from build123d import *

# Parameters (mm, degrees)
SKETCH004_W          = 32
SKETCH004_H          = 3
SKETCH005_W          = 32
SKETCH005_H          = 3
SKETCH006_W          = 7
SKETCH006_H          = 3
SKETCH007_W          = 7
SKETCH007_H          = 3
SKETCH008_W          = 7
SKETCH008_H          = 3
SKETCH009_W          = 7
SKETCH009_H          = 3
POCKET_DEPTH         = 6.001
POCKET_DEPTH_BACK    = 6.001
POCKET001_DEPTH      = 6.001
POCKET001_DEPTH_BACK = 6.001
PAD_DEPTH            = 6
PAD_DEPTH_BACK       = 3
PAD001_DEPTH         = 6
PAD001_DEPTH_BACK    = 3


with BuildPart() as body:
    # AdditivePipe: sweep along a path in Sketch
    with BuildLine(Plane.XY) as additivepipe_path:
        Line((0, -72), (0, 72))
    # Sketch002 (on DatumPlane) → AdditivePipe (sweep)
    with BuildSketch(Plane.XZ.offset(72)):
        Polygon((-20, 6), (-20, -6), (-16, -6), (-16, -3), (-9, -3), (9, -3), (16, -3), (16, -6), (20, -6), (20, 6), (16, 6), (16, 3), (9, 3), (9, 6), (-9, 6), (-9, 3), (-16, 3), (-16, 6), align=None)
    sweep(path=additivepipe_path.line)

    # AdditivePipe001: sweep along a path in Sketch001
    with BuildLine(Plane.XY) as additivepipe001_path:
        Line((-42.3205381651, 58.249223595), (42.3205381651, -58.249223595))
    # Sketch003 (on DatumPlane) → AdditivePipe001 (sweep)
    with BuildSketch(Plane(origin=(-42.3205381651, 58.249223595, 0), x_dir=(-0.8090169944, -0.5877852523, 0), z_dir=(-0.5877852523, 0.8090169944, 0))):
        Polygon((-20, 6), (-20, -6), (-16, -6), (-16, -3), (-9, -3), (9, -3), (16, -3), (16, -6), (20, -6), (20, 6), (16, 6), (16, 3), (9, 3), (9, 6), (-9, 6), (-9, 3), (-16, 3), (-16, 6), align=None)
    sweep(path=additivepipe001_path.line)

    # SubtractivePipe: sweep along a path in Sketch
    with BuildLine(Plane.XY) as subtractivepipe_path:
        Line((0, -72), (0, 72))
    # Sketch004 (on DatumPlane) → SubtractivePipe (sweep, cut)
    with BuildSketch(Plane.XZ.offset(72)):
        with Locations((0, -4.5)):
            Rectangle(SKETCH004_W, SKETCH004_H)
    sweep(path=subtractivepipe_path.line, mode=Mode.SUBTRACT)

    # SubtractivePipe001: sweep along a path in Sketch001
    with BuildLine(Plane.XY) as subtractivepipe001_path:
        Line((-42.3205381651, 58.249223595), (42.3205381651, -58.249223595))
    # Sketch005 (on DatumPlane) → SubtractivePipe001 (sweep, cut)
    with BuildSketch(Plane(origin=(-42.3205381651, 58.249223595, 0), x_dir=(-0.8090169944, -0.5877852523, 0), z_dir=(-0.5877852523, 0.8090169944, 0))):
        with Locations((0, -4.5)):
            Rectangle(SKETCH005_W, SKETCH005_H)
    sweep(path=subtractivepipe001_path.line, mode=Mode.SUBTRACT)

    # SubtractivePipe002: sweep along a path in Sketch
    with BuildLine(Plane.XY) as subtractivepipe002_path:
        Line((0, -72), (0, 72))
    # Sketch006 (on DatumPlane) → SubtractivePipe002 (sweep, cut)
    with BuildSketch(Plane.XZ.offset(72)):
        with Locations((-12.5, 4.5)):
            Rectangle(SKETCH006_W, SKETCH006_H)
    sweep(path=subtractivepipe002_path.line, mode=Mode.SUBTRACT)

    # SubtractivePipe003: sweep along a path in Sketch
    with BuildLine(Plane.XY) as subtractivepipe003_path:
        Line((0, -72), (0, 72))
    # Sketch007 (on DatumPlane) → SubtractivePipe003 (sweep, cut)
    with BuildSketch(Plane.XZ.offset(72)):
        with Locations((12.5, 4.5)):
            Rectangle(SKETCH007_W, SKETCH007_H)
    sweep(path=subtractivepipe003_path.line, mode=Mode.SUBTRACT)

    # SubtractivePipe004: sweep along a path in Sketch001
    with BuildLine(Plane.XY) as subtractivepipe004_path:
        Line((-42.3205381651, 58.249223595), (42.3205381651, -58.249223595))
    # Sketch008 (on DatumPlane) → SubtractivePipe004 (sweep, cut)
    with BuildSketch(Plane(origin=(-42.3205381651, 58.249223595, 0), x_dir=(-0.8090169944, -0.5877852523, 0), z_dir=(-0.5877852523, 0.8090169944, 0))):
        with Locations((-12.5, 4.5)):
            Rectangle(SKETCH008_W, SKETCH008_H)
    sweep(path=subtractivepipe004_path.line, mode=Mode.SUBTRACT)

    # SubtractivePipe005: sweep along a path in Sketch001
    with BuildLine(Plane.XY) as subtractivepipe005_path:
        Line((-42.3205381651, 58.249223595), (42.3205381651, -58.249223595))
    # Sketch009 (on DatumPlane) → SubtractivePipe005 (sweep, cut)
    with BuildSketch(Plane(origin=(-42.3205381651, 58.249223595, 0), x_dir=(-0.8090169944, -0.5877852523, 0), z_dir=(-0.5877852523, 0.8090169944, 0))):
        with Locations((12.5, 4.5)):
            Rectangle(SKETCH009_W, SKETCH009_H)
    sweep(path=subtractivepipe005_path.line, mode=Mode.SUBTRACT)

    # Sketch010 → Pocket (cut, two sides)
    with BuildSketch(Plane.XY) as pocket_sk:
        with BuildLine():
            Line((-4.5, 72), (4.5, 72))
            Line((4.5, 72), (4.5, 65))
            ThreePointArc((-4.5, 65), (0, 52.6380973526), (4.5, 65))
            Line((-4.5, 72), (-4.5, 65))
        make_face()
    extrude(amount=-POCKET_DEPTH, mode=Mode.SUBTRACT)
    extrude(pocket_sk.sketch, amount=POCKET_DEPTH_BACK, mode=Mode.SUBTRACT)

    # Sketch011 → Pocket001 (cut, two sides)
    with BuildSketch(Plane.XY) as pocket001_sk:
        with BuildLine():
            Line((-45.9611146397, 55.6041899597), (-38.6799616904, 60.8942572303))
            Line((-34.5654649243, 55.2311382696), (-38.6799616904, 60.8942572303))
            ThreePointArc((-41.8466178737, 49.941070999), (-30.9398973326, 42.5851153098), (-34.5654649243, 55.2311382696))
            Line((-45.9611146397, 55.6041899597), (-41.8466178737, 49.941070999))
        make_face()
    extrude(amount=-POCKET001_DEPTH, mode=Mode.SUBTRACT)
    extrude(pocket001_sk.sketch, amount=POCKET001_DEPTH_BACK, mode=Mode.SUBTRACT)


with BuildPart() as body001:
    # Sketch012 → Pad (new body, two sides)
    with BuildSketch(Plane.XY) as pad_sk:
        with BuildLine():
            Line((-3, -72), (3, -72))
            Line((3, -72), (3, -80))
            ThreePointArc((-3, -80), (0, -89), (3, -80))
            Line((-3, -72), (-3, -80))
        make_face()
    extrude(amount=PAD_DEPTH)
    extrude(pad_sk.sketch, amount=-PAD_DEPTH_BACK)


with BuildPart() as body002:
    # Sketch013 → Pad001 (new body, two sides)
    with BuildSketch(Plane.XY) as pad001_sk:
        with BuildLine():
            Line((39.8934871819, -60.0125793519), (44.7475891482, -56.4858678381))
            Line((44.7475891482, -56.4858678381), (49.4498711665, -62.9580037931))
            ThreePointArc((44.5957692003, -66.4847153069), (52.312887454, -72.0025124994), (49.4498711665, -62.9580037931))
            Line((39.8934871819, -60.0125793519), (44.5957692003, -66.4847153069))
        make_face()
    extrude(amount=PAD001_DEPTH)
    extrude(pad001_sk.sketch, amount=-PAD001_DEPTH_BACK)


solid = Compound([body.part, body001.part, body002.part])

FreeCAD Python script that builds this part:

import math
import FreeCAD as App
import Part
import Sketcher

V = App.Vector
Q = App.Units.Quantity

doc = App.newDocument("Part")
body = doc.addObject("PartDesign::Body", "Body")

sketch1 = body.newObject("Sketcher::SketchObject", "Sketch")
sketch1.AttachmentSupport = (doc.getObject("XZ_Plane"), [""])
sketch1.MapMode = "FlatFace"
sketch1.AttachmentOffset = App.Placement(V(0, 0, 72), App.Rotation())
sketch1.addGeometry(Part.LineSegment(V(-20, 6, 0), V(-20, -6, 0)), False)
sketch1.addGeometry(Part.LineSegment(V(-20, -6, 0), V(-16, -6, 0)), False)
sketch1.addGeometry(Part.LineSegment(V(-16, -6, 0), V(-16, -3, 0)), False)
sketch1.addGeometry(Part.LineSegment(V(-16, -3, 0), V(16, -3, 0)), False)
sketch1.addGeometry(Part.LineSegment(V(16, -3, 0), V(16, -6, 0)), False)
sketch1.addGeometry(Part.LineSegment(V(16, -6, 0), V(20, -6, 0)), False)
sketch1.addGeometry(Part.LineSegment(V(20, -6, 0), V(20, 6, 0)), False)
sketch1.addGeometry(Part.LineSegment(V(20, 6, 0), V(16, 6, 0)), False)
sketch1.addGeometry(Part.LineSegment(V(16, 6, 0), V(16, 3, 0)), False)
sketch1.addGeometry(Part.LineSegment(V(16, 3, 0), V(9, 3, 0)), False)
sketch1.addGeometry(Part.LineSegment(V(9, 3, 0), V(9, 6, 0)), False)
sketch1.addGeometry(Part.LineSegment(V(9, 6, 0), V(-9, 6, 0)), False)
sketch1.addGeometry(Part.LineSegment(V(-9, 6, 0), V(-9, 3, 0)), False)
sketch1.addGeometry(Part.LineSegment(V(-9, 3, 0), V(-16, 3, 0)), False)
sketch1.addGeometry(Part.LineSegment(V(-16, 3, 0), V(-16, 6, 0)), False)
sketch1.addGeometry(Part.LineSegment(V(-16, 6, 0), V(-20, 6, 0)), False)
sketch1.addConstraint(Sketcher.Constraint("Coincident", 0, 2, 1, 1))
sketch1.addConstraint(Sketcher.Constraint("Coincident", 1, 2, 2, 1))
sketch1.addConstraint(Sketcher.Constraint("Coincident", 2, 2, 3, 1))
sketch1.addConstraint(Sketcher.Constraint("Coincident", 3, 2, 4, 1))
sketch1.addConstraint(Sketcher.Constraint("Coincident", 4, 2, 5, 1))
sketch1.addConstraint(Sketcher.Constraint("Coincident", 5, 2, 6, 1))
sketch1.addConstraint(Sketcher.Constraint("Coincident", 6, 2, 7, 1))
sketch1.addConstraint(Sketcher.Constraint("Coincident", 7, 2, 8, 1))
sketch1.addConstraint(Sketcher.Constraint("Coincident", 8, 2, 9, 1))
sketch1.addConstraint(Sketcher.Constraint("Coincident", 9, 2, 10, 1))
sketch1.addConstraint(Sketcher.Constraint("Coincident", 10, 2, 11, 1))
sketch1.addConstraint(Sketcher.Constraint("Coincident", 11, 2, 12, 1))
sketch1.addConstraint(Sketcher.Constraint("Coincident", 12, 2, 13, 1))
sketch1.addConstraint(Sketcher.Constraint("Coincident", 13, 2, 14, 1))
sketch1.addConstraint(Sketcher.Constraint("Coincident", 14, 2, 15, 1))
sketch1.addConstraint(Sketcher.Constraint("Coincident", 15, 2, 0, 1))
sketch1.addConstraint(Sketcher.Constraint("Vertical", 0))
sketch1.addConstraint(Sketcher.Constraint("Horizontal", 1))
sketch1.addConstraint(Sketcher.Constraint("Vertical", 2))
sketch1.addConstraint(Sketcher.Constraint("Horizontal", 3))
sketch1.addConstraint(Sketcher.Constraint("Vertical", 4))
sketch1.addConstraint(Sketcher.Constraint("Horizontal", 5))
sketch1.addConstraint(Sketcher.Constraint("Vertical", 6))
sketch1.addConstraint(Sketcher.Constraint("Horizontal", 7))
sketch1.addConstraint(Sketcher.Constraint("Vertical", 8))
sketch1.addConstraint(Sketcher.Constraint("Horizontal", 9))
sketch1.addConstraint(Sketcher.Constraint("Vertical", 10))
sketch1.addConstraint(Sketcher.Constraint("Horizontal", 11))
sketch1.addConstraint(Sketcher.Constraint("Vertical", 12))
sketch1.addConstraint(Sketcher.Constraint("Horizontal", 13))
sketch1.addConstraint(Sketcher.Constraint("Vertical", 14))
sketch1.addConstraint(Sketcher.Constraint("Horizontal", 15))
sketch1.addConstraint(Sketcher.Constraint("Symmetric", 0, 2, 6, 2, -1, 1))
sketch1.addConstraint(Sketcher.Constraint("Symmetric", 2, 2, 8, 2, -1, 1))
sketch1.addConstraint(Sketcher.Constraint("Symmetric", 3, 2, 13, 2, -1, 1))
sketch1.addConstraint(Sketcher.Constraint("Symmetric", 1, 2, 4, 2, -2))
sketch1.addConstraint(Sketcher.Constraint("Horizontal", 7, 2, 10, 2))
sketch1.addConstraint(Sketcher.Constraint("Horizontal", 11, 2, 14, 2))
sketch1.addConstraint(Sketcher.Constraint("Equal", 9, 13))
sketch1.addConstraint(Sketcher.Constraint("DistanceX", 1, 1, 1, 2, Q("4 mm")))
sketch1.addConstraint(Sketcher.Constraint("DistanceX", 3, 1, 3, 2, Q("32 mm")))
sketch1.addConstraint(Sketcher.Constraint("DistanceX", 9, 2, 9, 1, Q("7 mm")))
sketch1.addConstraint(Sketcher.Constraint("DistanceY", 0, 2, 0, 1, Q("12 mm")))
sketch1.addConstraint(Sketcher.Constraint("DistanceY", 2, 1, 2, 2, Q("3 mm")))

sketch2 = body.newObject("Sketcher::SketchObject", "Sketch001")
sketch2.AttachmentSupport = (doc.getObject("XY_Plane"), [""])
sketch2.MapMode = "FlatFace"
sketch2.addGeometry(Part.LineSegment(V(0, -72, 0), V(0, 72, 0)), False)
sketch2.addConstraint(Sketcher.Constraint("Vertical", 0))
sketch2.addConstraint(Sketcher.Constraint("Symmetric", 0, 1, 0, 2, -1, 1))
sketch2.addConstraint(Sketcher.Constraint("DistanceY", 0, 1, 0, 2, Q("144 mm")))
doc.recompute()

additivepipe = body.newObject("PartDesign::AdditivePipe", "AdditivePipe")
additivepipe.Profile = sketch1
additivepipe.Spine = (sketch2, ["Edge1"])

sketch3 = body.newObject("Sketcher::SketchObject", "Sketch002")
sketch3.Placement = App.Placement(V(-42.320538, 58.249224, 0), App.Rotation(V(-0.809016994, -0.587785252, 0), V(0, 0, 0.999999999), V(-0.587785252, 0.809016994, 0), "ZXY"))
sketch3.addGeometry(Part.LineSegment(V(-20, 6, 0), V(-20, -6, 0)), False)
sketch3.addGeometry(Part.LineSegment(V(-20, -6, 0), V(-16, -6, 0)), False)
sketch3.addGeometry(Part.LineSegment(V(-16, -6, 0), V(-16, -3, 0)), False)
sketch3.addGeometry(Part.LineSegment(V(-16, -3, 0), V(16, -3, 0)), False)
sketch3.addGeometry(Part.LineSegment(V(16, -3, 0), V(16, -6, 0)), False)
sketch3.addGeometry(Part.LineSegment(V(16, -6, 0), V(20, -6, 0)), False)
sketch3.addGeometry(Part.LineSegment(V(20, -6, 0), V(20, 6, 0)), False)
sketch3.addGeometry(Part.LineSegment(V(20, 6, 0), V(16, 6, 0)), False)
sketch3.addGeometry(Part.LineSegment(V(16, 6, 0), V(16, 3, 0)), False)
sketch3.addGeometry(Part.LineSegment(V(16, 3, 0), V(9, 3, 0)), False)
sketch3.addGeometry(Part.LineSegment(V(9, 3, 0), V(9, 6, 0)), False)
sketch3.addGeometry(Part.LineSegment(V(9, 6, 0), V(-9, 6, 0)), False)
sketch3.addGeometry(Part.LineSegment(V(-9, 6, 0), V(-9, 3, 0)), False)
sketch3.addGeometry(Part.LineSegment(V(-9, 3, 0), V(-16, 3, 0)), False)
sketch3.addGeometry(Part.LineSegment(V(-16, 3, 0), V(-16, 6, 0)), False)
sketch3.addGeometry(Part.LineSegment(V(-16, 6, 0), V(-20, 6, 0)), False)
sketch3.addConstraint(Sketcher.Constraint("Coincident", 0, 2, 1, 1))
sketch3.addConstraint(Sketcher.Constraint("Coincident", 1, 2, 2, 1))
sketch3.addConstraint(Sketcher.Constraint("Coincident", 2, 2, 3, 1))
sketch3.addConstraint(Sketcher.Constraint("Coincident", 3, 2, 4, 1))
sketch3.addConstraint(Sketcher.Constraint("Coincident", 4, 2, 5, 1))
sketch3.addConstraint(Sketcher.Constraint("Coincident", 5, 2, 6, 1))
sketch3.addConstraint(Sketcher.Constraint("Coincident", 6, 2, 7, 1))
sketch3.addConstraint(Sketcher.Constraint("Coincident", 7, 2, 8, 1))
sketch3.addConstraint(Sketcher.Constraint("Coincident", 8, 2, 9, 1))
sketch3.addConstraint(Sketcher.Constraint("Coincident", 9, 2, 10, 1))
sketch3.addConstraint(Sketcher.Constraint("Coincident", 10, 2, 11, 1))
sketch3.addConstraint(Sketcher.Constraint("Coincident", 11, 2, 12, 1))
sketch3.addConstraint(Sketcher.Constraint("Coincident", 12, 2, 13, 1))
sketch3.addConstraint(Sketcher.Constraint("Coincident", 13, 2, 14, 1))
sketch3.addConstraint(Sketcher.Constraint("Coincident", 14, 2, 15, 1))
sketch3.addConstraint(Sketcher.Constraint("Coincident", 15, 2, 0, 1))
sketch3.addConstraint(Sketcher.Constraint("Vertical", 0))
sketch3.addConstraint(Sketcher.Constraint("Horizontal", 1))
sketch3.addConstraint(Sketcher.Constraint("Vertical", 2))
sketch3.addConstraint(Sketcher.Constraint("Horizontal", 3))
sketch3.addConstraint(Sketcher.Constraint("Vertical", 4))
sketch3.addConstraint(Sketcher.Constraint("Horizontal", 5))
sketch3.addConstraint(Sketcher.Constraint("Vertical", 6))
sketch3.addConstraint(Sketcher.Constraint("Horizontal", 7))
sketch3.addConstraint(Sketcher.Constraint("Vertical", 8))
sketch3.addConstraint(Sketcher.Constraint("Horizontal", 9))
sketch3.addConstraint(Sketcher.Constraint("Vertical", 10))
sketch3.addConstraint(Sketcher.Constraint("Horizontal", 11))
sketch3.addConstraint(Sketcher.Constraint("Vertical", 12))
sketch3.addConstraint(Sketcher.Constraint("Horizontal", 13))
sketch3.addConstraint(Sketcher.Constraint("Vertical", 14))
sketch3.addConstraint(Sketcher.Constraint("Horizontal", 15))
sketch3.addConstraint(Sketcher.Constraint("Symmetric", 0, 2, 6, 2, -1, 1))
sketch3.addConstraint(Sketcher.Constraint("Symmetric", 2, 2, 8, 2, -1, 1))
sketch3.addConstraint(Sketcher.Constraint("Symmetric", 3, 2, 13, 2, -1, 1))
sketch3.addConstraint(Sketcher.Constraint("Symmetric", 1, 2, 4, 2, -2))
sketch3.addConstraint(Sketcher.Constraint("Horizontal", 7, 2, 10, 2))
sketch3.addConstraint(Sketcher.Constraint("Horizontal", 11, 2, 14, 2))
sketch3.addConstraint(Sketcher.Constraint("Equal", 9, 13))
sketch3.addConstraint(Sketcher.Constraint("DistanceX", 1, 1, 1, 2, Q("4 mm")))
sketch3.addConstraint(Sketcher.Constraint("DistanceX", 3, 1, 3, 2, Q("32 mm")))
sketch3.addConstraint(Sketcher.Constraint("DistanceX", 9, 2, 9, 1, Q("7 mm")))
sketch3.addConstraint(Sketcher.Constraint("DistanceY", 0, 2, 0, 1, Q("12 mm")))
sketch3.addConstraint(Sketcher.Constraint("DistanceY", 2, 1, 2, 2, Q("3 mm")))

sketch4 = body.newObject("Sketcher::SketchObject", "Sketch003")
sketch4.Placement = App.Placement(V(0, 0, 0), App.Rotation(V(0.587785252, -0.809016994, 0), V(0, 0, 0.999999999), V(-0.809016994, -0.587785252, 0), "ZXY"))
sketch4.addGeometry(Part.LineSegment(V(-72, 0, 0), V(72, 0, 0)), False)
sketch4.addConstraint(Sketcher.Constraint("Horizontal", 0))
sketch4.addConstraint(Sketcher.Constraint("Symmetric", 0, 1, 0, 2, -1, 1))
sketch4.addConstraint(Sketcher.Constraint("DistanceX", 0, 1, 0, 2, Q("144 mm")))
doc.recompute()

additivepipe2 = body.newObject("PartDesign::AdditivePipe", "AdditivePipe001")
additivepipe2.Profile = sketch3
additivepipe2.Spine = (sketch4, ["Edge1"])

sketch5 = body.newObject("Sketcher::SketchObject", "Sketch004")
sketch5.AttachmentSupport = (doc.getObject("XZ_Plane"), [""])
sketch5.MapMode = "FlatFace"
sketch5.AttachmentOffset = App.Placement(V(0, 0, 72), App.Rotation())
sketch5.addGeometry(Part.LineSegment(V(-16, -3, 0), V(-16, -6, 0)), False)
sketch5.addGeometry(Part.LineSegment(V(-16, -6, 0), V(16, -6, 0)), False)
sketch5.addGeometry(Part.LineSegment(V(16, -6, 0), V(16, -3, 0)), False)
sketch5.addGeometry(Part.LineSegment(V(16, -3, 0), V(-16, -3, 0)), False)
sketch5.addConstraint(Sketcher.Constraint("Coincident", 0, 2, 1, 1))
sketch5.addConstraint(Sketcher.Constraint("Coincident", 1, 2, 2, 1))
sketch5.addConstraint(Sketcher.Constraint("Coincident", 2, 2, 3, 1))
sketch5.addConstraint(Sketcher.Constraint("Coincident", 3, 2, 0, 1))
sketch5.addConstraint(Sketcher.Constraint("Vertical", 0))
sketch5.addConstraint(Sketcher.Constraint("Horizontal", 1))
sketch5.addConstraint(Sketcher.Constraint("Vertical", 2))
sketch5.addConstraint(Sketcher.Constraint("Horizontal", 3))
sketch5.addConstraint(Sketcher.Constraint("DistanceX", 1, 1, 1, 2, Q("32 mm")))
sketch5.addConstraint(Sketcher.Constraint("DistanceY", 0, 2, 0, 1, Q("3 mm")))
sketch5.addConstraint(Sketcher.Constraint("DistanceX", 0, 2, -1, 1, Q("16 mm")))
sketch5.addConstraint(Sketcher.Constraint("DistanceY", 0, 2, -1, 1, Q("6 mm")))

sketch6 = body.newObject("Sketcher::SketchObject", "Sketch005")
sketch6.AttachmentSupport = (doc.getObject("XY_Plane"), [""])
sketch6.MapMode = "FlatFace"
sketch6.addGeometry(Part.LineSegment(V(0, -72, 0), V(0, 72, 0)), False)
sketch6.addConstraint(Sketcher.Constraint("Vertical", 0))
sketch6.addConstraint(Sketcher.Constraint("Symmetric", 0, 1, 0, 2, -1, 1))
sketch6.addConstraint(Sketcher.Constraint("DistanceY", 0, 1, 0, 2, Q("144 mm")))
doc.recompute()

subtractivepipe = body.newObject("PartDesign::SubtractivePipe", "SubtractivePipe")
subtractivepipe.Profile = sketch5
subtractivepipe.Spine = (sketch6, ["Edge1"])

sketch7 = body.newObject("Sketcher::SketchObject", "Sketch006")
sketch7.Placement = App.Placement(V(-42.320538, 58.249224, 0), App.Rotation(V(-0.809016994, -0.587785252, 0), V(0, 0, 0.999999999), V(-0.587785252, 0.809016994, 0), "ZXY"))
sketch7.addGeometry(Part.LineSegment(V(-16, -3, 0), V(-16, -6, 0)), False)
sketch7.addGeometry(Part.LineSegment(V(-16, -6, 0), V(16, -6, 0)), False)
sketch7.addGeometry(Part.LineSegment(V(16, -6, 0), V(16, -3, 0)), False)
sketch7.addGeometry(Part.LineSegment(V(16, -3, 0), V(-16, -3, 0)), False)
sketch7.addConstraint(Sketcher.Constraint("Coincident", 0, 2, 1, 1))
sketch7.addConstraint(Sketcher.Constraint("Coincident", 1, 2, 2, 1))
sketch7.addConstraint(Sketcher.Constraint("Coincident", 2, 2, 3, 1))
sketch7.addConstraint(Sketcher.Constraint("Coincident", 3, 2, 0, 1))
sketch7.addConstraint(Sketcher.Constraint("Vertical", 0))
sketch7.addConstraint(Sketcher.Constraint("Horizontal", 1))
sketch7.addConstraint(Sketcher.Constraint("Vertical", 2))
sketch7.addConstraint(Sketcher.Constraint("Horizontal", 3))
sketch7.addConstraint(Sketcher.Constraint("DistanceX", 1, 1, 1, 2, Q("32 mm")))
sketch7.addConstraint(Sketcher.Constraint("DistanceY", 0, 2, 0, 1, Q("3 mm")))
sketch7.addConstraint(Sketcher.Constraint("DistanceX", 0, 2, -1, 1, Q("16 mm")))
sketch7.addConstraint(Sketcher.Constraint("DistanceY", 0, 2, -1, 1, Q("6 mm")))

sketch8 = body.newObject("Sketcher::SketchObject", "Sketch007")
sketch8.Placement = App.Placement(V(0, 0, 0), App.Rotation(V(0.587785252, -0.809016994, 0), V(0, 0, 0.999999999), V(-0.809016994, -0.587785252, 0), "ZXY"))
sketch8.addGeometry(Part.LineSegment(V(-72, 0, 0), V(72, 0, 0)), False)
sketch8.addConstraint(Sketcher.Constraint("Horizontal", 0))
sketch8.addConstraint(Sketcher.Constraint("Symmetric", 0, 1, 0, 2, -1, 1))
sketch8.addConstraint(Sketcher.Constraint("DistanceX", 0, 1, 0, 2, Q("144 mm")))
doc.recompute()

subtractivepipe2 = body.newObject("PartDesign::SubtractivePipe", "SubtractivePipe001")
subtractivepipe2.Profile = sketch7
subtractivepipe2.Spine = (sketch8, ["Edge1"])

sketch9 = body.newObject("Sketcher::SketchObject", "Sketch008")
sketch9.AttachmentSupport = (doc.getObject("XZ_Plane"), [""])
sketch9.MapMode = "FlatFace"
sketch9.AttachmentOffset = App.Placement(V(0, 0, 72), App.Rotation())
sketch9.addGeometry(Part.LineSegment(V(-16, 6, 0), V(-16, 3, 0)), False)
sketch9.addGeometry(Part.LineSegment(V(-16, 3, 0), V(-9, 3, 0)), False)
sketch9.addGeometry(Part.LineSegment(V(-9, 3, 0), V(-9, 6, 0)), False)
sketch9.addGeometry(Part.LineSegment(V(-9, 6, 0), V(-16, 6, 0)), False)
sketch9.addConstraint(Sketcher.Constraint("Coincident", 0, 2, 1, 1))
sketch9.addConstraint(Sketcher.Constraint("Coincident", 1, 2, 2, 1))
sketch9.addConstraint(Sketcher.Constraint("Coincident", 2, 2, 3, 1))
sketch9.addConstraint(Sketcher.Constraint("Coincident", 3, 2, 0, 1))
sketch9.addConstraint(Sketcher.Constraint("Vertical", 0))
sketch9.addConstraint(Sketcher.Constraint("Horizontal", 1))
sketch9.addConstraint(Sketcher.Constraint("Vertical", 2))
sketch9.addConstraint(Sketcher.Constraint("Horizontal", 3))
sketch9.addConstraint(Sketcher.Constraint("DistanceX", 1, 1, 1, 2, Q("7 mm")))
sketch9.addConstraint(Sketcher.Constraint("DistanceY", 0, 2, 0, 1, Q("3 mm")))
sketch9.addConstraint(Sketcher.Constraint("DistanceX", 0, 2, -1, 1, Q("16 mm")))
sketch9.addConstraint(Sketcher.Constraint("DistanceY", -1, 1, 0, 2, Q("3 mm")))

sketch10 = body.newObject("Sketcher::SketchObject", "Sketch009")
sketch10.AttachmentSupport = (doc.getObject("XY_Plane"), [""])
sketch10.MapMode = "FlatFace"
sketch10.addGeometry(Part.LineSegment(V(0, -72, 0), V(0, 72, 0)), False)
sketch10.addConstraint(Sketcher.Constraint("Vertical", 0))
sketch10.addConstraint(Sketcher.Constraint("Symmetric", 0, 1, 0, 2, -1, 1))
sketch10.addConstraint(Sketcher.Constraint("DistanceY", 0, 1, 0, 2, Q("144 mm")))
doc.recompute()

subtractivepipe3 = body.newObject("PartDesign::SubtractivePipe", "SubtractivePipe002")
subtractivepipe3.Profile = sketch9
subtractivepipe3.Spine = (sketch10, ["Edge1"])

sketch11 = body.newObject("Sketcher::SketchObject", "Sketch010")
sketch11.AttachmentSupport = (doc.getObject("XZ_Plane"), [""])
sketch11.MapMode = "FlatFace"
sketch11.AttachmentOffset = App.Placement(V(0, 0, 72), App.Rotation())
sketch11.addGeometry(Part.LineSegment(V(9, 6, 0), V(9, 3, 0)), False)
sketch11.addGeometry(Part.LineSegment(V(9, 3, 0), V(16, 3, 0)), False)
sketch11.addGeometry(Part.LineSegment(V(16, 3, 0), V(16, 6, 0)), False)
sketch11.addGeometry(Part.LineSegment(V(16, 6, 0), V(9, 6, 0)), False)
sketch11.addConstraint(Sketcher.Constraint("Coincident", 0, 2, 1, 1))
sketch11.addConstraint(Sketcher.Constraint("Coincident", 1, 2, 2, 1))
sketch11.addConstraint(Sketcher.Constraint("Coincident", 2, 2, 3, 1))
sketch11.addConstraint(Sketcher.Constraint("Coincident", 3, 2, 0, 1))
sketch11.addConstraint(Sketcher.Constraint("Vertical", 0))
sketch11.addConstraint(Sketcher.Constraint("Horizontal", 1))
sketch11.addConstraint(Sketcher.Constraint("Vertical", 2))
sketch11.addConstraint(Sketcher.Constraint("Horizontal", 3))
sketch11.addConstraint(Sketcher.Constraint("DistanceX", 1, 1, 1, 2, Q("7 mm")))
sketch11.addConstraint(Sketcher.Constraint("DistanceY", 0, 2, 0, 1, Q("3 mm")))
sketch11.addConstraint(Sketcher.Constraint("DistanceX", -1, 1, 0, 2, Q("9 mm")))
sketch11.addConstraint(Sketcher.Constraint("DistanceY", -1, 1, 0, 2, Q("3 mm")))

sketch12 = body.newObject("Sketcher::SketchObject", "Sketch011")
sketch12.AttachmentSupport = (doc.getObject("XY_Plane"), [""])
sketch12.MapMode = "FlatFace"
sketch12.addGeometry(Part.LineSegment(V(0, -72, 0), V(0, 72, 0)), False)
sketch12.addConstraint(Sketcher.Constraint("Vertical", 0))
sketch12.addConstraint(Sketcher.Constraint("Symmetric", 0, 1, 0, 2, -1, 1))
sketch12.addConstraint(Sketcher.Constraint("DistanceY", 0, 1, 0, 2, Q("144 mm")))
doc.recompute()

subtractivepipe4 = body.newObject("PartDesign::SubtractivePipe", "SubtractivePipe003")
subtractivepipe4.Profile = sketch11
subtractivepipe4.Spine = (sketch12, ["Edge1"])

sketch13 = body.newObject("Sketcher::SketchObject", "Sketch012")
sketch13.Placement = App.Placement(V(-42.320538, 58.249224, 0), App.Rotation(V(-0.809016994, -0.587785252, 0), V(0, 0, 0.999999999), V(-0.587785252, 0.809016994, 0), "ZXY"))
sketch13.addGeometry(Part.LineSegment(V(-16, 6, 0), V(-16, 3, 0)), False)
sketch13.addGeometry(Part.LineSegment(V(-16, 3, 0), V(-9, 3, 0)), False)
sketch13.addGeometry(Part.LineSegment(V(-9, 3, 0), V(-9, 6, 0)), False)
sketch13.addGeometry(Part.LineSegment(V(-9, 6, 0), V(-16, 6, 0)), False)
sketch13.addConstraint(Sketcher.Constraint("Coincident", 0, 2, 1, 1))
sketch13.addConstraint(Sketcher.Constraint("Coincident", 1, 2, 2, 1))
sketch13.addConstraint(Sketcher.Constraint("Coincident", 2, 2, 3, 1))
sketch13.addConstraint(Sketcher.Constraint("Coincident", 3, 2, 0, 1))
sketch13.addConstraint(Sketcher.Constraint("Vertical", 0))
sketch13.addConstraint(Sketcher.Constraint("Horizontal", 1))
sketch13.addConstraint(Sketcher.Constraint("Vertical", 2))
sketch13.addConstraint(Sketcher.Constraint("Horizontal", 3))
sketch13.addConstraint(Sketcher.Constraint("DistanceX", 1, 1, 1, 2, Q("7 mm")))
sketch13.addConstraint(Sketcher.Constraint("DistanceY", 0, 2, 0, 1, Q("3 mm")))
sketch13.addConstraint(Sketcher.Constraint("DistanceX", 0, 2, -1, 1, Q("16 mm")))
sketch13.addConstraint(Sketcher.Constraint("DistanceY", -1, 1, 0, 2, Q("3 mm")))

sketch14 = body.newObject("Sketcher::SketchObject", "Sketch013")
sketch14.Placement = App.Placement(V(0, 0, 0), App.Rotation(V(0.587785252, -0.809016994, 0), V(0, 0, 0.999999999), V(-0.809016994, -0.587785252, 0), "ZXY"))
sketch14.addGeometry(Part.LineSegment(V(-72, 0, 0), V(72, 0, 0)), False)
sketch14.addConstraint(Sketcher.Constraint("Horizontal", 0))
sketch14.addConstraint(Sketcher.Constraint("Symmetric", 0, 1, 0, 2, -1, 1))
sketch14.addConstraint(Sketcher.Constraint("DistanceX", 0, 1, 0, 2, Q("144 mm")))
doc.recompute()

subtractivepipe5 = body.newObject("PartDesign::SubtractivePipe", "SubtractivePipe004")
subtractivepipe5.Profile = sketch13
subtractivepipe5.Spine = (sketch14, ["Edge1"])

sketch15 = body.newObject("Sketcher::SketchObject", "Sketch014")
sketch15.Placement = App.Placement(V(-42.320538, 58.249224, 0), App.Rotation(V(-0.809016994, -0.587785252, 0), V(0, 0, 0.999999999), V(-0.587785252, 0.809016994, 0), "ZXY"))
sketch15.addGeometry(Part.LineSegment(V(9, 6, 0), V(9, 3, 0)), False)
sketch15.addGeometry(Part.LineSegment(V(9, 3, 0), V(16, 3, 0)), False)
sketch15.addGeometry(Part.LineSegment(V(16, 3, 0), V(16, 6, 0)), False)
sketch15.addGeometry(Part.LineSegment(V(16, 6, 0), V(9, 6, 0)), False)
sketch15.addConstraint(Sketcher.Constraint("Coincident", 0, 2, 1, 1))
sketch15.addConstraint(Sketcher.Constraint("Coincident", 1, 2, 2, 1))
sketch15.addConstraint(Sketcher.Constraint("Coincident", 2, 2, 3, 1))
sketch15.addConstraint(Sketcher.Constraint("Coincident", 3, 2, 0, 1))
sketch15.addConstraint(Sketcher.Constraint("Vertical", 0))
sketch15.addConstraint(Sketcher.Constraint("Horizontal", 1))
sketch15.addConstraint(Sketcher.Constraint("Vertical", 2))
sketch15.addConstraint(Sketcher.Constraint("Horizontal", 3))
sketch15.addConstraint(Sketcher.Constraint("DistanceX", 1, 1, 1, 2, Q("7 mm")))
sketch15.addConstraint(Sketcher.Constraint("DistanceY", 0, 2, 0, 1, Q("3 mm")))
sketch15.addConstraint(Sketcher.Constraint("DistanceX", -1, 1, 0, 2, Q("9 mm")))
sketch15.addConstraint(Sketcher.Constraint("DistanceY", -1, 1, 0, 2, Q("3 mm")))

sketch16 = body.newObject("Sketcher::SketchObject", "Sketch015")
sketch16.Placement = App.Placement(V(0, 0, 0), App.Rotation(V(0.587785252, -0.809016994, 0), V(0, 0, 0.999999999), V(-0.809016994, -0.587785252, 0), "ZXY"))
sketch16.addGeometry(Part.LineSegment(V(-72, 0, 0), V(72, 0, 0)), False)
sketch16.addConstraint(Sketcher.Constraint("Horizontal", 0))
sketch16.addConstraint(Sketcher.Constraint("Symmetric", 0, 1, 0, 2, -1, 1))
sketch16.addConstraint(Sketcher.Constraint("DistanceX", 0, 1, 0, 2, Q("144 mm")))
doc.recompute()

subtractivepipe6 = body.newObject("PartDesign::SubtractivePipe", "SubtractivePipe005")
subtractivepipe6.Profile = sketch15
subtractivepipe6.Spine = (sketch16, ["Edge1"])

sketch17 = body.newObject("Sketcher::SketchObject", "Sketch016")
sketch17.AttachmentSupport = (doc.getObject("XY_Plane"), [""])
sketch17.MapMode = "FlatFace"
sketch17.addGeometry(Part.LineSegment(V(4, 72, 0), V(-4, 72, 0)), False)
sketch17.addGeometry(Part.LineSegment(V(-4, 72, 0), V(-4, 65, 0)), False)
sketch17.addGeometry(Part.ArcOfCircle(Part.Circle(V(0, 60, 0), V(0, 0, 1), 7), math.radians(130), math.radians(410)), False)
sketch17.addGeometry(Part.LineSegment(V(4, 65, 0), V(4, 72, 0)), False)
sketch17.addConstraint(Sketcher.Constraint("Coincident", 0, 2, 1, 1))
sketch17.addConstraint(Sketcher.Constraint("Coincident", 1, 2, 2, 1))
sketch17.addConstraint(Sketcher.Constraint("Coincident", 2, 2, 3, 1))
sketch17.addConstraint(Sketcher.Constraint("Coincident", 3, 2, 0, 1))
sketch17.addConstraint(Sketcher.Constraint("Horizontal", 0))
sketch17.addConstraint(Sketcher.Constraint("Vertical", 1))
sketch17.addConstraint(Sketcher.Constraint("Vertical", 3))
sketch17.addConstraint(Sketcher.Constraint("Symmetric", 1, 2, 2, 2, -2))
sketch17.addConstraint(Sketcher.Constraint("Radius", 2, Q("7 mm")))
sketch17.addConstraint(Sketcher.Constraint("DistanceX", 0, 2, 0, 1, Q("9 mm")))
sketch17.addConstraint(Sketcher.Constraint("DistanceY", 1, 2, 1, 1, Q("7 mm")))
sketch17.addConstraint(Sketcher.Constraint("DistanceY", -1, 1, 0, 2, Q("72 mm")))
pocket1 = body.newObject("PartDesign::Pocket", "Pocket")
pocket1.Profile = sketch17
pocket1.Type = "ThroughAll"
pocket1.Midplane = True

sketch18 = body.newObject("Sketcher::SketchObject", "Sketch017")
sketch18.AttachmentSupport = (doc.getObject("XY_Plane"), [""])
sketch18.MapMode = "FlatFace"
sketch18.addGeometry(Part.LineSegment(V(-39, 61, 0), V(-46, 56, 0)), False)
sketch18.addGeometry(Part.LineSegment(V(-46, 56, 0), V(-42, 50, 0)), False)
sketch18.addGeometry(Part.ArcOfCircle(Part.Circle(V(-35, 48, 0), V(0, 0, 1), 7), math.radians(166), math.radians(446)), False)
sketch18.addGeometry(Part.LineSegment(V(-35, 55, 0), V(-39, 61, 0)), False)
sketch18.addConstraint(Sketcher.Constraint("Coincident", 0, 2, 1, 1))
sketch18.addConstraint(Sketcher.Constraint("Coincident", 1, 2, 2, 1))
sketch18.addConstraint(Sketcher.Constraint("Coincident", 2, 2, 3, 1))
sketch18.addConstraint(Sketcher.Constraint("Coincident", 3, 2, 0, 1))
sketch18.addConstraint(Sketcher.Constraint("Perpendicular", 0, 1))
sketch18.addConstraint(Sketcher.Constraint("Parallel", 1, 3))
sketch18.addConstraint(Sketcher.Constraint("Equal", 1, 3))
sketch18.addConstraint(Sketcher.Constraint("Radius", 2, Q("7 mm")))
sketch18.addConstraint(Sketcher.Constraint("Angle", 0, Q("-144 deg")))
sketch18.addConstraint(Sketcher.Constraint("Distance", 0, Q("9 mm")))
sketch18.addConstraint(Sketcher.Constraint("Distance", 1, Q("7 mm")))
sketch18.addConstraint(Sketcher.Constraint("DistanceY", -1, 1, 0, 2, Q("55.60419 mm")))
sketch18.addConstraint(Sketcher.Constraint("DistanceX", 3, 2, -1, 1, Q("38.679962 mm")))
pocket2 = body.newObject("PartDesign::Pocket", "Pocket001")
pocket2.Profile = sketch18
pocket2.Type = "ThroughAll"
pocket2.Midplane = True
body2 = doc.addObject("PartDesign::Body", "Body001")

sketch19 = body2.newObject("Sketcher::SketchObject", "Sketch018")
sketch19.AttachmentSupport = (doc.getObject("XY_Plane001"), [""])
sketch19.MapMode = "FlatFace"
sketch19.addGeometry(Part.LineSegment(V(3, -72, 0), V(-3, -72, 0)), False)
sketch19.addGeometry(Part.LineSegment(V(-3, -72, 0), V(-3, -80, 0)), False)
sketch19.addGeometry(Part.ArcOfCircle(Part.Circle(V(0, -84, 0), V(0, 0, 1), 5), math.radians(127), math.radians(413)), False)
sketch19.addGeometry(Part.LineSegment(V(3, -80, 0), V(3, -72, 0)), False)
sketch19.addConstraint(Sketcher.Constraint("Coincident", 0, 2, 1, 1))
sketch19.addConstraint(Sketcher.Constraint("Coincident", 1, 2, 2, 1))
sketch19.addConstraint(Sketcher.Constraint("Coincident", 2, 2, 3, 1))
sketch19.addConstraint(Sketcher.Constraint("Coincident", 3, 2, 0, 1))
sketch19.addConstraint(Sketcher.Constraint("Horizontal", 0))
sketch19.addConstraint(Sketcher.Constraint("Vertical", 1))
sketch19.addConstraint(Sketcher.Constraint("Vertical", 3))
sketch19.addConstraint(Sketcher.Constraint("Symmetric", 1, 2, 2, 2, -2))
sketch19.addConstraint(Sketcher.Constraint("Radius", 2, Q("5 mm")))
sketch19.addConstraint(Sketcher.Constraint("DistanceX", 0, 2, 0, 1, Q("6 mm")))
sketch19.addConstraint(Sketcher.Constraint("DistanceY", 1, 2, 1, 1, Q("8 mm")))
sketch19.addConstraint(Sketcher.Constraint("DistanceY", 2, 3, -1, 1, Q("84 mm")))
pad1 = body2.newObject("PartDesign::Pad", "Pad")
pad1.Profile = sketch19
pad1.Type = "TwoLengths"
pad1.Length = 6
pad1.Length2 = 3
body3 = doc.addObject("PartDesign::Body", "Body002")

sketch20 = body3.newObject("Sketcher::SketchObject", "Sketch019")
sketch20.AttachmentSupport = (doc.getObject("XY_Plane002"), [""])
sketch20.MapMode = "FlatFace"
sketch20.addGeometry(Part.LineSegment(V(45, -56, 0), V(40, -60, 0)), False)
sketch20.addGeometry(Part.LineSegment(V(40, -60, 0), V(45, -66, 0)), False)
sketch20.addGeometry(Part.ArcOfCircle(Part.Circle(V(49, -68, 0), V(0, 0, 1), 5), math.radians(163), math.radians(449)), False)
sketch20.addGeometry(Part.LineSegment(V(49, -63, 0), V(45, -56, 0)), False)
sketch20.addConstraint(Sketcher.Constraint("Coincident", 0, 2, 1, 1))
sketch20.addConstraint(Sketcher.Constraint("Coincident", 1, 2, 2, 1))
sketch20.addConstraint(Sketcher.Constraint("Coincident", 2, 2, 3, 1))
sketch20.addConstraint(Sketcher.Constraint("Coincident", 3, 2, 0, 1))
sketch20.addConstraint(Sketcher.Constraint("Perpendicular", 0, 1))
sketch20.addConstraint(Sketcher.Constraint("Parallel", 1, 3))
sketch20.addConstraint(Sketcher.Constraint("Equal", 1, 3))
sketch20.addConstraint(Sketcher.Constraint("Radius", 2, Q("5 mm")))
sketch20.addConstraint(Sketcher.Constraint("Angle", 0, Q("-144 deg")))
sketch20.addConstraint(Sketcher.Constraint("Distance", 0, Q("6 mm")))
sketch20.addConstraint(Sketcher.Constraint("Distance", 1, Q("8 mm")))
sketch20.addConstraint(Sketcher.Constraint("DistanceX", -1, 1, 2, 3, Q("49.373961 mm")))
sketch20.addConstraint(Sketcher.Constraint("DistanceY", 0, 2, -1, 1, Q("60.012579 mm")))
pad2 = body3.newObject("PartDesign::Pad", "Pad001")
pad2.Profile = sketch20
pad2.Type = "TwoLengths"
pad2.Length = 6
pad2.Length2 = 3

doc.recompute()
